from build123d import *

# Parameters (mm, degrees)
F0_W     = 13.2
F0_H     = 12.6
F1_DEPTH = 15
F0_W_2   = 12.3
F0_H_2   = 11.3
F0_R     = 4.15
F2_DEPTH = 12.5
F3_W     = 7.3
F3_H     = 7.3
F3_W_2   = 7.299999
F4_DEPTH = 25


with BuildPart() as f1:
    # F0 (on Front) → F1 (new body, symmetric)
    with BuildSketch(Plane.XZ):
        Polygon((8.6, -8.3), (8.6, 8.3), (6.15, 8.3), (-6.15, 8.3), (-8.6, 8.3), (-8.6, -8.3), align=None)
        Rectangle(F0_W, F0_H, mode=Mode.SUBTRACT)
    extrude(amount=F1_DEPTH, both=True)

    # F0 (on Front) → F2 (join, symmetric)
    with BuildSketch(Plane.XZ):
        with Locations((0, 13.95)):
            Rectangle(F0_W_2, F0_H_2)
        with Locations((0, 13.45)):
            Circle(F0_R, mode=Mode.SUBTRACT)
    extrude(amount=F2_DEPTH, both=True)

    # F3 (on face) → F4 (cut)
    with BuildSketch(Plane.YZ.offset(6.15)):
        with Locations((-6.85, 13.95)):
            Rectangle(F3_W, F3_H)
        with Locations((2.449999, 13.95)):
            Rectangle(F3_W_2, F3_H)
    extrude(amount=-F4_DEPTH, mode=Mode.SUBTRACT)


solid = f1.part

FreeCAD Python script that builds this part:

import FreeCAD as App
import Part
import Sketcher

doc = App.newDocument("Part")
params = doc.addObject("Spreadsheet::Sheet", "Params")
for row, (alias, value) in enumerate([
    ("sketch1_width", "17.2 mm"),
    ("sketch1_width2", "13.2 mm"),
    ("sketch1_height", "16.6 mm"),
    ("sketch1_height2", "12.6 mm"),
    ("pad1_length", "30 mm"),
    ("sketch2_diameter", "8.3 mm"),
    ("sketch2_width", "12.3 mm"),
    ("sketch2_height", "11.3 mm"),
    ("pad2_length", "25 mm"),
    ("sketch3_width", "7.3 mm"),
    ("pocket1_length", "25 mm"),
], start=1):
    params.set(f"A{row}", alias)
    params.set(f"B{row}", "=" + value)
    params.setAlias(f"B{row}", alias)

body = doc.addObject("PartDesign::Body", "Body")

# Sketch on XZ plane
sketch1 = body.newObject("Sketcher::SketchObject", "Sketch")
sketch1.AttachmentSupport = (doc.getObject("XZ_Plane"), [""])
sketch1.MapMode = "FlatFace"
sketch1.addGeometry([
    Part.LineSegment(App.Vector(9, -8, 0), App.Vector(9, 8, 0)),  # 0
    Part.LineSegment(App.Vector(9, 8, 0), App.Vector(-9, 8, 0)),  # 1
    Part.LineSegment(App.Vector(-9, 8, 0), App.Vector(-9, -8, 0)),  # 2
    Part.LineSegment(App.Vector(-9, -8, 0), App.Vector(9, -8, 0)),  # 3
    Part.LineSegment(App.Vector(7, -6, 0), App.Vector(-7, -6, 0)),  # 4
    Part.LineSegment(App.Vector(-7, -6, 0), App.Vector(-7, 6, 0)),  # 5
    Part.LineSegment(App.Vector(-7, 6, 0), App.Vector(7, 6, 0)),  # 6
    Part.LineSegment(App.Vector(7, 6, 0), App.Vector(7, -6, 0)),  # 7
], False)
sketch1.addConstraint([
    Sketcher.Constraint("Coincident", 0, 2, 1, 1),
    Sketcher.Constraint("Coincident", 1, 2, 2, 1),
    Sketcher.Constraint("Coincident", 2, 2, 3, 1),
    Sketcher.Constraint("Coincident", 3, 2, 0, 1),
    Sketcher.Constraint("Coincident", 4, 2, 5, 1),
    Sketcher.Constraint("Coincident", 5, 2, 6, 1),
    Sketcher.Constraint("Coincident", 6, 2, 7, 1),
    Sketcher.Constraint("Coincident", 7, 2, 4, 1),
    Sketcher.Constraint("Vertical", 0),
    Sketcher.Constraint("Horizontal", 1),
    Sketcher.Constraint("Vertical", 2),
    Sketcher.Constraint("Horizontal", 3),
    Sketcher.Constraint("Horizontal", 4),
    Sketcher.Constraint("Vertical", 5),
    Sketcher.Constraint("Horizontal", 6),
    Sketcher.Constraint("Vertical", 7),
    Sketcher.Constraint("Symmetric", 0, 2, 2, 2, -1, 1),
    Sketcher.Constraint("Symmetric", 4, 2, 6, 2, -1, 1),
    Sketcher.Constraint("DistanceX", 1, 2, 1, 1, 17.2),
    Sketcher.Constraint("DistanceX", 4, 2, 4, 1, 13.2),
    Sketcher.Constraint("DistanceY", 0, 1, 0, 2, 16.6),
    Sketcher.Constraint("DistanceY", 5, 1, 5, 2, 12.6),
])
sketch1.setExpression("Constraints[18]", "Params.sketch1_width")
sketch1.setExpression("Constraints[19]", "Params.sketch1_width2")
sketch1.setExpression("Constraints[20]", "Params.sketch1_height")
sketch1.setExpression("Constraints[21]", "Params.sketch1_height2")
pad1 = body.newObject("PartDesign::Pad", "Pad")
pad1.Profile = sketch1
pad1.setExpression("Length", "Params.pad1_length")
pad1.Midplane = True

# Sketch on XZ plane
sketch2 = body.newObject("Sketcher::SketchObject", "Sketch001")
sketch2.AttachmentSupport = (doc.getObject("XZ_Plane"), [""])
sketch2.MapMode = "FlatFace"
sketch2.addGeometry([
    Part.LineSegment(App.Vector(-6.2, 19.6, 0), App.Vector(-6.2, 8.3, 0)),  # 0
    Part.LineSegment(App.Vector(-6.2, 8.3, 0), App.Vector(6.2, 8.3, 0)),  # 1
    Part.LineSegment(App.Vector(6.2, 8.3, 0), App.Vector(6.2, 19.6, 0)),  # 2
    Part.LineSegment(App.Vector(6.2, 19.6, 0), App.Vector(-6.2, 19.6, 0)),  # 3
    Part.Circle(App.Vector(0, 13.4, 0), App.Vector(0, 0, 1), 4.2),  # 4
], False)
sketch2.addConstraint([
    Sketcher.Constraint("Coincident", 0, 2, 1, 1),
    Sketcher.Constraint("Coincident", 1, 2, 2, 1),
    Sketcher.Constraint("Coincident", 2, 2, 3, 1),
    Sketcher.Constraint("Coincident", 3, 2, 0, 1),
    Sketcher.Constraint("Vertical", 0),
    Sketcher.Constraint("Horizontal", 1),
    Sketcher.Constraint("Vertical", 2),
    Sketcher.Constraint("Horizontal", 3),
    Sketcher.Constraint("PointOnObject", 4, 3, -2),
    Sketcher.Constraint("Diameter", 4, 8.3),
    Sketcher.Constraint("DistanceX", 1, 1, 1, 2, 12.3),
    Sketcher.Constraint("DistanceY", 0, 2, 0, 1, 11.3),
    Sketcher.Constraint("DistanceY", -1, 1, 0, 2, 8.3),
    Sketcher.Constraint("DistanceY", -1, 1, 4, 3, 13.45),
    Sketcher.Constraint("DistanceX", 0, 2, -1, 1, 6.15),
])
sketch2.setExpression("Constraints[9]", "Params.sketch2_diameter")
sketch2.setExpression("Constraints[10]", "Params.sketch2_width")
sketch2.setExpression("Constraints[11]", "Params.sketch2_height")
pad2 = body.newObject("PartDesign::Pad", "Pad001")
pad2.Profile = sketch2
pad2.setExpression("Length", "Params.pad2_length")
pad2.Midplane = True

# Sketch on YZ plane
sketch3 = body.newObject("Sketcher::SketchObject", "Sketch002")
sketch3.AttachmentSupport = (doc.getObject("YZ_Plane"), [""])
sketch3.MapMode = "FlatFace"
sketch3.AttachmentOffset = App.Placement(App.Vector(0, 0, 6.15), App.Rotation())
sketch3.addGeometry([
    Part.LineSegment(App.Vector(-10, 18, 0), App.Vector(-10, 10, 0)),  # 0
    Part.LineSegment(App.Vector(-10, 10, 0), App.Vector(-3, 10, 0)),  # 1
    Part.LineSegment(App.Vector(-3, 10, 0), App.Vector(-3, 18, 0)),  # 2
    Part.LineSegment(App.Vector(-3, 18, 0), App.Vector(-10, 18, 0)),  # 3
    Part.LineSegment(App.Vector(-1, 18, 0), App.Vector(-1, 10, 0)),  # 4
    Part.LineSegment(App.Vector(-1, 10, 0), App.Vector(6, 10, 0)),  # 5
    Part.LineSegment(App.Vector(6, 10, 0), App.Vector(6, 18, 0)),  # 6
    Part.LineSegment(App.Vector(6, 18, 0), App.Vector(-1, 18, 0)),  # 7
], False)
sketch3.addConstraint([
    Sketcher.Constraint("Coincident", 0, 2, 1, 1),
    Sketcher.Constraint("Coincident", 1, 2, 2, 1),
    Sketcher.Constraint("Coincident", 2, 2, 3, 1),
    Sketcher.Constraint("Coincident", 3, 2, 0, 1),
    Sketcher.Constraint("Coincident", 4, 2, 5, 1),
    Sketcher.Constraint("Coincident", 5, 2, 6, 1),
    Sketcher.Constraint("Coincident", 6, 2, 7, 1),
    Sketcher.Constraint("Coincident", 7, 2, 4, 1),
    Sketcher.Constraint("Vertical", 0),
    Sketcher.Constraint("Horizontal", 1),
    Sketcher.Constraint("Vertical", 2),
    Sketcher.Constraint("Horizontal", 3),
    Sketcher.Constraint("Vertical", 4),
    Sketcher.Constraint("Horizontal", 5),
    Sketcher.Constraint("Vertical", 6),
    Sketcher.Constraint("Horizontal", 7),
    Sketcher.Constraint("Horizontal", 1, 2, 4, 2),
    Sketcher.Constraint("Horizontal", 3, 2, 6, 2),
    Sketcher.Constraint("Equal", 3, 5),
    Sketcher.Constraint("Equal", 7, 0),
    Sketcher.Constraint("DistanceX", 1, 1, 1, 2, 7.3),
    Sketcher.Constraint("DistanceX", 1, 2, 4, 2, 2.0),
    Sketcher.Constraint("DistanceX", 0, 2, -1, 1, 10.5),
    Sketcher.Constraint("DistanceY", -1, 1, 0, 2, 10.3),
])
sketch3.setExpression("Constraints[20]", "Params.sketch3_width")
pocket1 = body.newObject("PartDesign::Pocket", "Pocket")
pocket1.Profile = sketch3
pocket1.setExpression("Length", "Params.pocket1_length")

doc.recompute()
